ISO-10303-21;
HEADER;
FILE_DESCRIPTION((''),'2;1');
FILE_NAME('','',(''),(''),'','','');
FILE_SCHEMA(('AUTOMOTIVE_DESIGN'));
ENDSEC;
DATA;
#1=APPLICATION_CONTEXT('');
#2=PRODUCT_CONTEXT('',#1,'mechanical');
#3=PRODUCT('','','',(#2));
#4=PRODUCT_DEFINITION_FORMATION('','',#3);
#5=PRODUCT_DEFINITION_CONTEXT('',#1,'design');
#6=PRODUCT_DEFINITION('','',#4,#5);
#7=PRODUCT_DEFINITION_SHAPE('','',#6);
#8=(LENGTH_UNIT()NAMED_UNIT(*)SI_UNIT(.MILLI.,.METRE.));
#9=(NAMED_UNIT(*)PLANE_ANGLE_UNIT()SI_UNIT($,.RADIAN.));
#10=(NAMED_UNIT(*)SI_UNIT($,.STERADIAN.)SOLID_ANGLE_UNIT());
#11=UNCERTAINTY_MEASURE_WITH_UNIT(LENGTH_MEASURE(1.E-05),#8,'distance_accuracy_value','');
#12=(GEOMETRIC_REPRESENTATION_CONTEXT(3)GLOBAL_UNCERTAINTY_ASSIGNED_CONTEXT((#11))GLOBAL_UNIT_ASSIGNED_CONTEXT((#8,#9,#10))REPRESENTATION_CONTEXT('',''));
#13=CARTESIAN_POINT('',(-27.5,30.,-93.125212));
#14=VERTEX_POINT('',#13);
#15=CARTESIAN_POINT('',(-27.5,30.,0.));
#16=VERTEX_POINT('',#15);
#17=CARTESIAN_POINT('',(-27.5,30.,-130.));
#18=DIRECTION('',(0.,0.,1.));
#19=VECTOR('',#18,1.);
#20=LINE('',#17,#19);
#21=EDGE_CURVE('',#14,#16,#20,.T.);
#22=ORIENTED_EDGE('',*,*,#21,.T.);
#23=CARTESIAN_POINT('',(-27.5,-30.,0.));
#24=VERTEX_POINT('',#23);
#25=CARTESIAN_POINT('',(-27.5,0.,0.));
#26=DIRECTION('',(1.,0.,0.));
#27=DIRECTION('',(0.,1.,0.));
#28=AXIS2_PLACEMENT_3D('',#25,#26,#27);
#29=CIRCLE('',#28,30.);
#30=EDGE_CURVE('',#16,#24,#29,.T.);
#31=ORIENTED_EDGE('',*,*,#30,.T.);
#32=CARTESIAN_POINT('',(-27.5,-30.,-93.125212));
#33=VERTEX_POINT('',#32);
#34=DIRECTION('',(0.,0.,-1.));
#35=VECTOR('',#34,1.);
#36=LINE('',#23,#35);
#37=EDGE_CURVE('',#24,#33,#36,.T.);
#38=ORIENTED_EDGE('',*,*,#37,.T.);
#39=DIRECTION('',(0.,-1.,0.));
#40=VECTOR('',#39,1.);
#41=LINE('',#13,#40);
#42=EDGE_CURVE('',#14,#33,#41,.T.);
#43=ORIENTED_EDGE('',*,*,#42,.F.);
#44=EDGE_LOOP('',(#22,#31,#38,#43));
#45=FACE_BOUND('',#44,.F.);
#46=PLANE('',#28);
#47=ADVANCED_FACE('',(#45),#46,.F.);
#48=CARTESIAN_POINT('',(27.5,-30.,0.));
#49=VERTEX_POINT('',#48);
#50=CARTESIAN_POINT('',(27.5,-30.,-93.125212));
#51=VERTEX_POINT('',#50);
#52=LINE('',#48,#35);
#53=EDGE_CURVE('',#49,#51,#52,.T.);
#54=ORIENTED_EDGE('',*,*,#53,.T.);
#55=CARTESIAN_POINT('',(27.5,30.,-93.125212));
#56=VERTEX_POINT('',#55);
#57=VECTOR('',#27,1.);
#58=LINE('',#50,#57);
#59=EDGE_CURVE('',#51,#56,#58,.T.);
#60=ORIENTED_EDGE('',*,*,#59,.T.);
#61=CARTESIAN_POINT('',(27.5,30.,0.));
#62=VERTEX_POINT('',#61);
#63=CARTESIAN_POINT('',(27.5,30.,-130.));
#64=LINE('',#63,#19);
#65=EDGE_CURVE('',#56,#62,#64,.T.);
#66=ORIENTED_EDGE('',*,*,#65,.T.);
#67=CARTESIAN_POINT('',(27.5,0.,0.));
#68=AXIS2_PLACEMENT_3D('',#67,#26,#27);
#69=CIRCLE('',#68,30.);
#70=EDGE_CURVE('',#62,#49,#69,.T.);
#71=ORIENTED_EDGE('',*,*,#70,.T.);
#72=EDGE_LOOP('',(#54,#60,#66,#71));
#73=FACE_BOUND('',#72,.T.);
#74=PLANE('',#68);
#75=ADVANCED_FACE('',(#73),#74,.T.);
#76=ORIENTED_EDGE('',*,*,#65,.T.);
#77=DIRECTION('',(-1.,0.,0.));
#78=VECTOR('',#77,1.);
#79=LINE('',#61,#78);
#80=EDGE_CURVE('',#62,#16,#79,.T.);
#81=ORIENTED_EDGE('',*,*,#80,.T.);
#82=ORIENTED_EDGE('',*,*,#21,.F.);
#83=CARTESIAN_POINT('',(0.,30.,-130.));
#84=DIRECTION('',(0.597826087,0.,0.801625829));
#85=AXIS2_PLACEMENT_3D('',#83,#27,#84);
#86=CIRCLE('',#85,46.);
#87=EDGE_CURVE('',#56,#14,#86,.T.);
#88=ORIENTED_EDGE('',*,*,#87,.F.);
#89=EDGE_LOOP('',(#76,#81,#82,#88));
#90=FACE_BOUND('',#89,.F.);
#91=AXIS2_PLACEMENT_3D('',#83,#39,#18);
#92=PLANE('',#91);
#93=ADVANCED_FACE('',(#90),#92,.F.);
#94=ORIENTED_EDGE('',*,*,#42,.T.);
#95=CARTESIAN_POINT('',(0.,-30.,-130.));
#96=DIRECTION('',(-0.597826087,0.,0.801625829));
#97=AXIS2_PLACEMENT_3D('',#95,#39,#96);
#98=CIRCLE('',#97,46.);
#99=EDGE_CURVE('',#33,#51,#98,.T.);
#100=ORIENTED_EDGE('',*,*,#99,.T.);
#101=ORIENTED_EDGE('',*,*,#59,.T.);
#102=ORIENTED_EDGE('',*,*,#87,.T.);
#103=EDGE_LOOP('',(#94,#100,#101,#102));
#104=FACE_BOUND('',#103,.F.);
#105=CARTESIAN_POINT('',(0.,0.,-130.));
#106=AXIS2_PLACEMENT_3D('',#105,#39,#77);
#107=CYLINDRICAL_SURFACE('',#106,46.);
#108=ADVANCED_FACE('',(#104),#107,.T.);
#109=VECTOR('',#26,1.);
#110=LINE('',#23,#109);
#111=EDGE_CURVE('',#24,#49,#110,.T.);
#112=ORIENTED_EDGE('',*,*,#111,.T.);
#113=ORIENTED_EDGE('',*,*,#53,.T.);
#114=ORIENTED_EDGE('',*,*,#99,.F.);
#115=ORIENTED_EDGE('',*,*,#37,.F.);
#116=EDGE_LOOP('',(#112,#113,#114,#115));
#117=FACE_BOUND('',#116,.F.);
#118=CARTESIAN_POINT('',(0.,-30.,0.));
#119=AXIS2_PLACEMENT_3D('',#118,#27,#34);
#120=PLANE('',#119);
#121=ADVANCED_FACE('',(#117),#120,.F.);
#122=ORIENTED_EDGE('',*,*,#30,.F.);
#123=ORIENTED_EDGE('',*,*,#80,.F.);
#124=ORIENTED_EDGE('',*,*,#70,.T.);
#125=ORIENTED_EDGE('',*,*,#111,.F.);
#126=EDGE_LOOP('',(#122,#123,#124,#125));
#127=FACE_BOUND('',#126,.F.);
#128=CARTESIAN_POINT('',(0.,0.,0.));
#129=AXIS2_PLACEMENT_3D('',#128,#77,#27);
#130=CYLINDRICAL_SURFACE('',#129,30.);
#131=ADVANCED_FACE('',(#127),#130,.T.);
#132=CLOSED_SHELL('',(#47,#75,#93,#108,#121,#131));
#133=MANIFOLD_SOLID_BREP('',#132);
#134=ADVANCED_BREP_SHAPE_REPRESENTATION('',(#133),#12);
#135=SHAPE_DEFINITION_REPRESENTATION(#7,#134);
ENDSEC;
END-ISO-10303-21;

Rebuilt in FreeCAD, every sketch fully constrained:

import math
import FreeCAD as App
import Part
import Sketcher

doc = App.newDocument("Part")
body = doc.addObject("PartDesign::Body", "Body")

sketch1 = body.newObject("Sketcher::SketchObject", "Sketch")
sketch1.AttachmentSupport = (doc.getObject("YZ_Plane"), [""])
sketch1.MapMode = "FlatFace"
sketch1.addGeometry([
    Part.ArcOfCircle(Part.Circle(App.Vector(0, 0, 0), App.Vector(0, 0, 1), 30), math.radians(0), math.radians(180)),
    Part.LineSegment(App.Vector(-30, 0, 0), App.Vector(-30, -130, 0)),
    Part.LineSegment(App.Vector(-30, -130, 0), App.Vector(30, -130, 0)),
    Part.LineSegment(App.Vector(30, -130, 0), App.Vector(30, 0, 0)),
], False)
sketch1.addConstraint([
    Sketcher.Constraint("Tangent", 0, 2, 1, 1),
    Sketcher.Constraint("Coincident", 1, 2, 2, 1),
    Sketcher.Constraint("Coincident", 2, 2, 3, 1),
    Sketcher.Constraint("Tangent", 3, 2, 0, 1),
    Sketcher.Constraint("Vertical", 1),
    Sketcher.Constraint("Horizontal", 2),
    Sketcher.Constraint("Vertical", 3),
    Sketcher.Constraint("Coincident", 0, 3, -1, 1),
    Sketcher.Constraint("Radius", 0, 30.0),
    Sketcher.Constraint("DistanceY", 1, 2, 1, 1, 130.0),
])
pad1 = body.newObject("PartDesign::Pad", "Pad")
pad1.Profile = sketch1
pad1.Length = 55
pad1.Midplane = True

sketch2 = body.newObject("Sketcher::SketchObject", "Sketch001")
sketch2.AttachmentSupport = (doc.getObject("XZ_Plane"), [""])
sketch2.MapMode = "FlatFace"
sketch2.addGeometry(Part.Circle(App.Vector(0, -130, 0), App.Vector(0, 0, 1), 46), False)
sketch2.addConstraint([
    Sketcher.Constraint("PointOnObject", 0, 3, -2),
    Sketcher.Constraint("Diameter", 0, 92.0),
    Sketcher.Constraint("DistanceY", 0, 3, -1, 1, 130.0),
])
pad2 = body.newObject("PartDesign::Pad", "Pad001")
pad2.Profile = sketch2
pad2.Length = 60
pad2.Midplane = True

doc.recompute()
